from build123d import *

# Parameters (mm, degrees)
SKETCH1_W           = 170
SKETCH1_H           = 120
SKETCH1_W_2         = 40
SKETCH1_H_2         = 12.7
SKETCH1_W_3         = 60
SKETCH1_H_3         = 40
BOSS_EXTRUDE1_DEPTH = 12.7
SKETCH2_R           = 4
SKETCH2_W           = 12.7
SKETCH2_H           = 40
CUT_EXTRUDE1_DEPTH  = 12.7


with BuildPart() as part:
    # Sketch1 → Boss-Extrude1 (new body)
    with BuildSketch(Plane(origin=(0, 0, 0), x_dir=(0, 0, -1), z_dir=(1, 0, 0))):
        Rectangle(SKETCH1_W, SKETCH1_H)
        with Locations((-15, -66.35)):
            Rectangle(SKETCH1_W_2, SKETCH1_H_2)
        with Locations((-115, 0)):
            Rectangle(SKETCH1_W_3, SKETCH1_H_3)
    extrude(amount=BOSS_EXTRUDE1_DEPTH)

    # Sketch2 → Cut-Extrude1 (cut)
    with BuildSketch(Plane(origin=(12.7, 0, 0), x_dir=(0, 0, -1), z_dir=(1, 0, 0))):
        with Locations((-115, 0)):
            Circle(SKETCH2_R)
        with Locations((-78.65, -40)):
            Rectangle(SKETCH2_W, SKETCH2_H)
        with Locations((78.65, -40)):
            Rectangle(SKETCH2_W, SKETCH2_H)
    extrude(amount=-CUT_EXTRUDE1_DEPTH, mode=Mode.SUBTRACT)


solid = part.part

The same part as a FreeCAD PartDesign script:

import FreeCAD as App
import Part
import Sketcher
from FreeCAD import Vector


def add_polygon(sketch, points):
    """Adds a closed chain of lines whose ends are joined by coincident constraints."""
    first, n = sketch.GeometryCount, len(points)
    for a, b in zip(points, points[1:] + points[:1]):
        sketch.addGeometry(Part.LineSegment(App.Vector(*a, 0), App.Vector(*b, 0)), False)
    for i in range(n):
        sketch.addConstraint(Sketcher.Constraint("Coincident", first + i, 2, first + (i + 1) % n, 1))

doc = App.newDocument("Part")
body = doc.addObject("PartDesign::Body", "Body")

sketch1 = body.newObject("Sketcher::SketchObject", "Sketch")
sketch1.AttachmentSupport = (doc.getObject("YZ_Plane"), [""])
sketch1.MapMode = "FlatFace"
add_polygon(sketch1, [(-20, 85), (-60, 85), (-60, 35), (-73, 35), (-73, -5), (-60, -5), (-60, -85), (60, -85), (60, 85), (20, 85), (20, 145), (-20, 145)])
sketch1.addConstraint([
    Sketcher.Constraint("Horizontal", 0),
    Sketcher.Constraint("Vertical", 1),
    Sketcher.Constraint("Horizontal", 2),
    Sketcher.Constraint("Vertical", 3),
    Sketcher.Constraint("Horizontal", 4),
    Sketcher.Constraint("Vertical", 5),
    Sketcher.Constraint("Horizontal", 6),
    Sketcher.Constraint("Vertical", 7),
    Sketcher.Constraint("Horizontal", 8),
    Sketcher.Constraint("Vertical", 9),
    Sketcher.Constraint("Horizontal", 10),
    Sketcher.Constraint("Vertical", 11),
    Sketcher.Constraint("Symmetric", 0, 2, 6, 2, -1, 1),
    Sketcher.Constraint("Symmetric", 5, 2, 7, 2, -1, 1),
    Sketcher.Constraint("Equal", 0, 8),
    Sketcher.Constraint("Equal", 8, 10),
    Sketcher.Constraint("Equal", 10, 3),
    Sketcher.Constraint("DistanceX", 0, 2, 0, 1, 40.0),
    Sketcher.Constraint("DistanceY", 1, 2, 1, 1, 50.0),
    Sketcher.Constraint("DistanceY", 5, 2, 5, 1, 80.0),
    Sketcher.Constraint("DistanceY", 9, 1, 9, 2, 60.0),
    Sketcher.Constraint("DistanceX", 2, 2, 2, 1, 12.7),
])
pad1 = body.newObject("PartDesign::Pad", "Pad")
pad1.Profile = sketch1
pad1.Length = 12.7

sketch2 = body.newObject("Sketcher::SketchObject", "Sketch001")
sketch2.AttachmentSupport = (doc.getObject("YZ_Plane"), [""])
sketch2.MapMode = "FlatFace"
sketch2.AttachmentOffset = App.Placement(Vector(0, 0, 12.7), App.Rotation())
sketch2.addGeometry(Part.Circle(Vector(0, 115, 0), Vector(0, 0, 1), 4), False)
add_polygon(sketch2, [(-20, 85), (-60, 85), (-60, 72.3), (-20, 72.3)])
add_polygon(sketch2, [(-20, -72.3), (-60, -72.3), (-60, -85), (-20, -85)])
sketch2.addConstraint([
    Sketcher.Constraint("Horizontal", 1),
    Sketcher.Constraint("Vertical", 2),
    Sketcher.Constraint("Horizontal", 3),
    Sketcher.Constraint("Vertical", 4),
    Sketcher.Constraint("Horizontal", 5),
    Sketcher.Constraint("Vertical", 6),
    Sketcher.Constraint("Horizontal", 7),
    Sketcher.Constraint("Vertical", 8),
    Sketcher.Constraint("Symmetric", 2, 2, 5, 2, -1),
    Sketcher.Constraint("Symmetric", 4, 2, 7, 2, -1),
    Sketcher.Constraint("PointOnObject", 0, 3, -2),
    Sketcher.Constraint("Diameter", 0, 8.0),
    Sketcher.Constraint("DistanceX", 1, 2, 1, 1, 40.0),
    Sketcher.Constraint("DistanceY", 2, 2, 2, 1, 12.7),
    Sketcher.Constraint("DistanceY", -1, 1, 0, 3, 115.0),
    Sketcher.Constraint("DistanceX", 1, 2, -1, 1, 60.0),
    Sketcher.Constraint("DistanceY", -1, 1, 1, 2, 85.0),
])
pocket1 = body.newObject("PartDesign::Pocket", "Pocket")
pocket1.Profile = sketch2
pocket1.Length = 12.7

doc.recompute()
